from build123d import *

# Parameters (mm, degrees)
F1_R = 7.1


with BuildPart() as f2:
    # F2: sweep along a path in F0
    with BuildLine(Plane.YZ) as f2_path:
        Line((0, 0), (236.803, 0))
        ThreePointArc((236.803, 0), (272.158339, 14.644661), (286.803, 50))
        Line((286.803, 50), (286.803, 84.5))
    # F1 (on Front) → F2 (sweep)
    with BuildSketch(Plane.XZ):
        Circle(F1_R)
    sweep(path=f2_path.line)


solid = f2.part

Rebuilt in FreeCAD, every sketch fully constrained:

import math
import FreeCAD as App
import Part
import Sketcher
from FreeCAD import Vector

doc = App.newDocument("Part")
params = doc.addObject("Spreadsheet::Sheet", "Params")
for row, (alias, value) in enumerate([
    ("sketch1_diameter", "14.2 mm"),
    ("sketch2_radius", "50 mm"),
    ("sketch2_height", "34.5 mm"),
], start=1):
    params.set(f"A{row}", alias)
    params.set(f"B{row}", "=" + value)
    params.setAlias(f"B{row}", alias)

body = doc.addObject("PartDesign::Body", "Body")

sketch1 = doc.addObject("Sketcher::SketchObject", "Sketch")
body.addObject(sketch1)
sketch1.AttachmentSupport = (doc.XZ_Plane, [""])
sketch1.MapMode = "FlatFace"
sketch1.addGeometry(Part.Circle(Vector(0, 0, 0), Vector(0, 0, 1), 7), False)
sketch1.addConstraint([
    Sketcher.Constraint("Coincident", 0, 3, -1, 1),
    Sketcher.Constraint("Diameter", 0, 14.2),
])
sketch1.setExpression("Constraints[1]", "Params.sketch1_diameter")

sketch2 = doc.addObject("Sketcher::SketchObject", "Sketch001")
body.addObject(sketch2)
sketch2.AttachmentSupport = (doc.YZ_Plane, [""])
sketch2.MapMode = "FlatFace"
sketch2.addGeometry([
    Part.LineSegment(Vector(0, 0, 0), Vector(237, 0, 0)),
    Part.ArcOfCircle(Part.Circle(Vector(237, 50, 0), Vector(0, 0, 1), 50), math.radians(-90), math.radians(0)),
    Part.LineSegment(Vector(287, 50, 0), Vector(287, 84, 0)),
], False)
sketch2.addConstraint([
    Sketcher.Constraint("Tangent", 0, 2, 1, 1),
    Sketcher.Constraint("Tangent", 1, 2, 2, 1),
    Sketcher.Constraint("Horizontal", 0),
    Sketcher.Constraint("Vertical", 2),
    Sketcher.Constraint("Coincident", 0, 1, -1, 1),
    Sketcher.Constraint("Radius", 1, 50.0),
    Sketcher.Constraint("DistanceY", 2, 1, 2, 2, 34.5),
    Sketcher.Constraint("DistanceX", 0, 1, 0, 2, 236.803),
])
sketch2.setExpression("Constraints[5]", "Params.sketch2_radius")
sketch2.setExpression("Constraints[6]", "Params.sketch2_height")
doc.recompute()

additivepipe = doc.addObject("PartDesign::AdditivePipe", "AdditivePipe")
body.addObject(additivepipe)
additivepipe.Profile = sketch1
additivepipe.Spine = (sketch2, ["Edge1", "Edge2", "Edge3"])

doc.recompute()
